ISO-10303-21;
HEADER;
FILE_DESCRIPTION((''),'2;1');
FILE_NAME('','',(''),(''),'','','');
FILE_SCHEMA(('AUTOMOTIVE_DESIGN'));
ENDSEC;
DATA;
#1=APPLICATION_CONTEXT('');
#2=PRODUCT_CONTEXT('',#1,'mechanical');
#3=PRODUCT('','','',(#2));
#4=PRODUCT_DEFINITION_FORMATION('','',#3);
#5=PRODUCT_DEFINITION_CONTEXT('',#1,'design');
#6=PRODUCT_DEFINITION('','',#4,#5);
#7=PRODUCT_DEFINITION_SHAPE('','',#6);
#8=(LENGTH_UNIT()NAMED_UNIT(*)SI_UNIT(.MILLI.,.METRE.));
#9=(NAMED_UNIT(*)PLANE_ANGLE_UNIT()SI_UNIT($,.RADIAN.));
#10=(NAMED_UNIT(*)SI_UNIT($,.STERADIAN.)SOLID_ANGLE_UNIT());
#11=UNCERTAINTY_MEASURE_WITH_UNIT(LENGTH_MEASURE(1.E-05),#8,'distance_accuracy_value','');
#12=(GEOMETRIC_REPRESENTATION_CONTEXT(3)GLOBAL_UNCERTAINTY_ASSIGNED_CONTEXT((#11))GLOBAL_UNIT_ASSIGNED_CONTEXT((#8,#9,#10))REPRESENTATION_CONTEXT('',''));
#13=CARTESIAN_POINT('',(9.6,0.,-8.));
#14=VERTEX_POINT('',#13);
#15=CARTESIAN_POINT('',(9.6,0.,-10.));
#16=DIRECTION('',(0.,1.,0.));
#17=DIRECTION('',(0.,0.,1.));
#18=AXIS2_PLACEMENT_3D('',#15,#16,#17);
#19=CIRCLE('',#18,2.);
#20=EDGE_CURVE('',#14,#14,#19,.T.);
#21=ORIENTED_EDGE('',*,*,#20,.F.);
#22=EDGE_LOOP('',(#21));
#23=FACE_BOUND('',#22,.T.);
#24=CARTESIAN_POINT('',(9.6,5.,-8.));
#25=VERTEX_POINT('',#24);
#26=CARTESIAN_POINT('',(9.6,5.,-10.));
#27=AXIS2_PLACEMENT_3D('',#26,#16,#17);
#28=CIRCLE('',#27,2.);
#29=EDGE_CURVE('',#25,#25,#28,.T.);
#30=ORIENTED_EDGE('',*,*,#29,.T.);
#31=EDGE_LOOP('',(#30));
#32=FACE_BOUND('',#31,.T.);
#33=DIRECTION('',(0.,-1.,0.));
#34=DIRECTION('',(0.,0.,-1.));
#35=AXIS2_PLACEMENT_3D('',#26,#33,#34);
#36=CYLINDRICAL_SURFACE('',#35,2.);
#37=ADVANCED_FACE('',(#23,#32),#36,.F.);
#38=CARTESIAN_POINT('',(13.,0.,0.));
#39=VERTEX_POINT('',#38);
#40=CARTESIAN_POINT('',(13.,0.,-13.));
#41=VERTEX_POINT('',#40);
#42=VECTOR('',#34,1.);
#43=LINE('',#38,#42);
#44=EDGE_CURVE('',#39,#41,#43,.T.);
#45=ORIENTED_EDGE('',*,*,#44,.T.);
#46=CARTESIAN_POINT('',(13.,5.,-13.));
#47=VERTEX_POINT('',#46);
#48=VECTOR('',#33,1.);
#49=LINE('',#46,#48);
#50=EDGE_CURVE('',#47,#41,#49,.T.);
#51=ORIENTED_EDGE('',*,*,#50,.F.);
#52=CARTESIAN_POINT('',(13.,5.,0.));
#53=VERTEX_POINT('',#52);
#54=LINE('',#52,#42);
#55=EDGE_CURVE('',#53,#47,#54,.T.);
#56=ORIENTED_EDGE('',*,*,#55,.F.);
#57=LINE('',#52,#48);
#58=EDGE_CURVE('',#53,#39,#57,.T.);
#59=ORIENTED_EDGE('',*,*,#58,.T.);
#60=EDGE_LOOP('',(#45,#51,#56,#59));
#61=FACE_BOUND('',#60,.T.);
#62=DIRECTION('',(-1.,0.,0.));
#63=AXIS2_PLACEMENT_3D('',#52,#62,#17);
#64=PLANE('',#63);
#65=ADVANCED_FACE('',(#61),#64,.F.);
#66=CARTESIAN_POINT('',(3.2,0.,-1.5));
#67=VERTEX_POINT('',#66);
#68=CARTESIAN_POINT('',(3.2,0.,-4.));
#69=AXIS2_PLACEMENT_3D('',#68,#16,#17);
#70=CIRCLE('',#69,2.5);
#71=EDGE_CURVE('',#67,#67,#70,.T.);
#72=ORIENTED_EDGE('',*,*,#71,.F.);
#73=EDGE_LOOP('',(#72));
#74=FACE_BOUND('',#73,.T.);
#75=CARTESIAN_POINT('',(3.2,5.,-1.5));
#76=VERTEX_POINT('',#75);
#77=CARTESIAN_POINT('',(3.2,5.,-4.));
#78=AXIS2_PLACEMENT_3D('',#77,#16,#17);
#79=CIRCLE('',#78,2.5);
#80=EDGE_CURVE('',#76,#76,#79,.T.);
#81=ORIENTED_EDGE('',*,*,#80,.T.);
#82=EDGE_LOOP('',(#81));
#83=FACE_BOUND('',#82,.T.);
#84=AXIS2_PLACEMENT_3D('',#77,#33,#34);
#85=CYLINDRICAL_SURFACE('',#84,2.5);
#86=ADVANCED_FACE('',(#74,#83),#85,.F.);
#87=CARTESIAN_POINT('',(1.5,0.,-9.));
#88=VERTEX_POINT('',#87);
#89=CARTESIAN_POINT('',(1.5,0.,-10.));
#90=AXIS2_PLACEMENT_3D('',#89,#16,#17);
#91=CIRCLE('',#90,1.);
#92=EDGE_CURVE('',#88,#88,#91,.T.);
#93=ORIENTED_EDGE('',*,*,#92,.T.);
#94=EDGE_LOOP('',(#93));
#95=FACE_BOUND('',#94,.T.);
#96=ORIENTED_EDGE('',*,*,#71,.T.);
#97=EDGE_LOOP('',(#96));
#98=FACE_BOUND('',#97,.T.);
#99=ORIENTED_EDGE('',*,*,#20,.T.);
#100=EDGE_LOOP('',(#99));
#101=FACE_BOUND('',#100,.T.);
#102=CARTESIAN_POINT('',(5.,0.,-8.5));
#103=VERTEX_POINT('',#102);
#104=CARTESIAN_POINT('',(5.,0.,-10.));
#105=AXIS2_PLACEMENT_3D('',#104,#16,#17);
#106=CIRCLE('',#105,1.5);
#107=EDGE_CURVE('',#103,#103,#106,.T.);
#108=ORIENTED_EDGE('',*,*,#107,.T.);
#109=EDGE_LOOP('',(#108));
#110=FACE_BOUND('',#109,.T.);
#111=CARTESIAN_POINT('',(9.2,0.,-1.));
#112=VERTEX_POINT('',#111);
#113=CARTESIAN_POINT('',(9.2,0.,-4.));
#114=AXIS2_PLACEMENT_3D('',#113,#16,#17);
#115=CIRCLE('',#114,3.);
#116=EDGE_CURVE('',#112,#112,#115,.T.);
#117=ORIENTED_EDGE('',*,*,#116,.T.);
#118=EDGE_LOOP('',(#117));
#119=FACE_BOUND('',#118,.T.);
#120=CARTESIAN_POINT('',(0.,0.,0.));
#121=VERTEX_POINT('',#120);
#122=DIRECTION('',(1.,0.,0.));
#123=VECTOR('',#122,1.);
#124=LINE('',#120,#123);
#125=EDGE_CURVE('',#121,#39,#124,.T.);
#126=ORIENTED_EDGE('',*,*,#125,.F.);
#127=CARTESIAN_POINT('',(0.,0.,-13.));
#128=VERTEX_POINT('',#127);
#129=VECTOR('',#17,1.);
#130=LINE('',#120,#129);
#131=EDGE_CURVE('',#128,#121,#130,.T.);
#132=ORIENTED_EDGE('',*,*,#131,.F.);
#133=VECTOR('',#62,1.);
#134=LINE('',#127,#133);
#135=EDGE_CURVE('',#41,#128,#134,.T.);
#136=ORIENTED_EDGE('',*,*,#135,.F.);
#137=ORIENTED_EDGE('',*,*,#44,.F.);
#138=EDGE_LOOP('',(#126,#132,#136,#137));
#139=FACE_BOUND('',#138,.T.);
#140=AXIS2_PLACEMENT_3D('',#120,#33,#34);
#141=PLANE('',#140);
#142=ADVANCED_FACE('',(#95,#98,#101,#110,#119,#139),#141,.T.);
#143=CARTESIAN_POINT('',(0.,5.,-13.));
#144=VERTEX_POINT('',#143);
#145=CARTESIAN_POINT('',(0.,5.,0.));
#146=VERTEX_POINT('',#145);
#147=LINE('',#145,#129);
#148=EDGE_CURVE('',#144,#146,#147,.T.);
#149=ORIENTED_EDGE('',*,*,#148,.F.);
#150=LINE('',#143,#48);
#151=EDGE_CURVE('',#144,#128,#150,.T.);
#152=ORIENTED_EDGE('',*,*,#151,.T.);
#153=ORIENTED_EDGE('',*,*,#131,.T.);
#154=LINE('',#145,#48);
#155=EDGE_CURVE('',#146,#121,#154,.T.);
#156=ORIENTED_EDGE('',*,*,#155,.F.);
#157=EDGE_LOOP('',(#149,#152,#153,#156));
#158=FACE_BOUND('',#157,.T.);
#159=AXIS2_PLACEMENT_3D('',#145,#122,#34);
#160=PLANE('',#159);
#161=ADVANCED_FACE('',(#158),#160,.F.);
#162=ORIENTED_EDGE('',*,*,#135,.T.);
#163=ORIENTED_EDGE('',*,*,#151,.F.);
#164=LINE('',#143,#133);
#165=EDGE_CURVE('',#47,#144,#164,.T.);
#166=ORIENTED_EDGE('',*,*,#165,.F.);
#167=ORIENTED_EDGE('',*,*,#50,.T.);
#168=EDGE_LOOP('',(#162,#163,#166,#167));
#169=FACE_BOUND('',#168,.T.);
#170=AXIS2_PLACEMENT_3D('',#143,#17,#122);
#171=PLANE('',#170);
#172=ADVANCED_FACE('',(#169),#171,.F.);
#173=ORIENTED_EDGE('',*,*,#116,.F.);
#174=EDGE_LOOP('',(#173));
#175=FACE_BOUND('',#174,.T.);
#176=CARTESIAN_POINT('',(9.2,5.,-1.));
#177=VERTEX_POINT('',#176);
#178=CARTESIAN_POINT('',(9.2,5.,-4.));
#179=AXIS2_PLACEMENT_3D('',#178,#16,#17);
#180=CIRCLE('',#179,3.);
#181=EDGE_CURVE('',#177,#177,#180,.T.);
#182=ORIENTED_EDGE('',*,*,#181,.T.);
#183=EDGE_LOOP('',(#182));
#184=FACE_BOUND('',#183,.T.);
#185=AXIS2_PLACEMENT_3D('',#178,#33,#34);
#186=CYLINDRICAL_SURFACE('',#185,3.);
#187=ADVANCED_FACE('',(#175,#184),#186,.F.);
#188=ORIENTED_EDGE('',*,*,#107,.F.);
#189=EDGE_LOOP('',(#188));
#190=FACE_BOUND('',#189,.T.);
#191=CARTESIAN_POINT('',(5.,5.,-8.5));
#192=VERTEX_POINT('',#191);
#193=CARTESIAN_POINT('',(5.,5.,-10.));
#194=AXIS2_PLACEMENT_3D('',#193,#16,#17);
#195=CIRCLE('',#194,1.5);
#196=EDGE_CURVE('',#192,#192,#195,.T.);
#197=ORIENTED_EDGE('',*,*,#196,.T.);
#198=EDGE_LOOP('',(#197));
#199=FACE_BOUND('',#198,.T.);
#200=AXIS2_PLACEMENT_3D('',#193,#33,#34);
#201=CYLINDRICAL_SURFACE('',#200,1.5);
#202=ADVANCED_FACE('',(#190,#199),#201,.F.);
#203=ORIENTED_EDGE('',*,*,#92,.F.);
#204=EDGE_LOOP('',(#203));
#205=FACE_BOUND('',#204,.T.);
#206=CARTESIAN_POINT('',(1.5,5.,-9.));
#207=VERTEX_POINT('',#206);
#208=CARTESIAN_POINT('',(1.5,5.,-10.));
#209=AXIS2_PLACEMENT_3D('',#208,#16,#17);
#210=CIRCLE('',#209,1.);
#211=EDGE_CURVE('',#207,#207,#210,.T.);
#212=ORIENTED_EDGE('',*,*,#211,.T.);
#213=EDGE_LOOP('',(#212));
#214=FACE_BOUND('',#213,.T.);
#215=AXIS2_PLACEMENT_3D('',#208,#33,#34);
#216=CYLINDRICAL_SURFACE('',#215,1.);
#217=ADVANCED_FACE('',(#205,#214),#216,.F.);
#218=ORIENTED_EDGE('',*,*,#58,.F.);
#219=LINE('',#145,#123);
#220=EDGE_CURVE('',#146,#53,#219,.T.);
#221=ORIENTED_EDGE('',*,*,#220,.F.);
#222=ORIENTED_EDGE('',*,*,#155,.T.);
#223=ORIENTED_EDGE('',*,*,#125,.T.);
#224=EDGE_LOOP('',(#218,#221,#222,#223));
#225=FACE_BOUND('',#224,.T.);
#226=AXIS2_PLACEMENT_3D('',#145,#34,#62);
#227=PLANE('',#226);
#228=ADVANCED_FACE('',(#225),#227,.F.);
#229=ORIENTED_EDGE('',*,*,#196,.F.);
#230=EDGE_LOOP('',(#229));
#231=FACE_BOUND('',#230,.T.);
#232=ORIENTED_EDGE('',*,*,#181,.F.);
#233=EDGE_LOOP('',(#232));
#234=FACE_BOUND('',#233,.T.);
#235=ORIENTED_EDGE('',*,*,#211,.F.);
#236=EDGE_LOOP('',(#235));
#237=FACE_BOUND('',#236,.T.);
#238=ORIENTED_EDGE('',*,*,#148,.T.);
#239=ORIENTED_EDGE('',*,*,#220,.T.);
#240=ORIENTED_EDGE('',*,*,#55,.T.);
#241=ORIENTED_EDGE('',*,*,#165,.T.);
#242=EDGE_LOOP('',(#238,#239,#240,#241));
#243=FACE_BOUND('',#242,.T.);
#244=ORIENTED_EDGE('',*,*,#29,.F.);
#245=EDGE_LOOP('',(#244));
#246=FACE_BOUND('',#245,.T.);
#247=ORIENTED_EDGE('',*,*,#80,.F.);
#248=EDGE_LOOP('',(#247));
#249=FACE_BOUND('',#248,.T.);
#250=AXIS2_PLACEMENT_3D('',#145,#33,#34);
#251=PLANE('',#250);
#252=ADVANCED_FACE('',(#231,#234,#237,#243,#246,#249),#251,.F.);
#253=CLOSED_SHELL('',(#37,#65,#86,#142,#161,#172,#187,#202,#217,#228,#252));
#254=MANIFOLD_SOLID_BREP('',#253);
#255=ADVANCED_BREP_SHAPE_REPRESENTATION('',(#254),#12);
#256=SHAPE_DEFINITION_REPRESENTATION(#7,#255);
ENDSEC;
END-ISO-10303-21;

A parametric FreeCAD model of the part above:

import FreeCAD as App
import Part
import Sketcher

V = App.Vector
Q = App.Units.Quantity


def add_polygon(sketch, points):
    """Adds a closed chain of lines whose ends are joined by coincident constraints."""
    first, n = sketch.GeometryCount, len(points)
    for a, b in zip(points, points[1:] + points[:1]):
        sketch.addGeometry(Part.LineSegment(App.Vector(*a, 0), App.Vector(*b, 0)), False)
    for i in range(n):
        sketch.addConstraint(Sketcher.Constraint("Coincident", first + i, 2, first + (i + 1) % n, 1))

doc = App.newDocument("Part")
body = doc.addObject("PartDesign::Body", "Body")

sketch1 = body.newObject("Sketcher::SketchObject", "Sketch")
sketch1.AttachmentSupport = (doc.getObject("XZ_Plane"), [""])
sketch1.MapMode = "FlatFace"
add_polygon(sketch1, [(0, -13), (0, 0), (13, 0), (13, -13)])
sketch1.addGeometry(Part.Circle(V(3.2, -4, 0), V(0, 0, 1), 2.5), False)
sketch1.addGeometry(Part.Circle(V(9.2, -4, 0), V(0, 0, 1), 3), False)
sketch1.addGeometry(Part.Circle(V(1.5, -10, 0), V(0, 0, 1), 1), False)
sketch1.addGeometry(Part.Circle(V(5, -10, 0), V(0, 0, 1), 1.5), False)
sketch1.addGeometry(Part.Circle(V(9.6, -10, 0), V(0, 0, 1), 2), False)
sketch1.addConstraint(Sketcher.Constraint("Vertical", 0))
sketch1.addConstraint(Sketcher.Constraint("Horizontal", 1))
sketch1.addConstraint(Sketcher.Constraint("Vertical", 2))
sketch1.addConstraint(Sketcher.Constraint("Horizontal", 3))
sketch1.addConstraint(Sketcher.Constraint("Coincident", 0, 2, -1, 1))
sketch1.addConstraint(Sketcher.Constraint("Horizontal", 4, 3, 5, 3))
sketch1.addConstraint(Sketcher.Constraint("Horizontal", 6, 3, 7, 3))
sketch1.addConstraint(Sketcher.Constraint("Horizontal", 7, 3, 8, 3))
sketch1.addConstraint(Sketcher.Constraint("Equal", 3, 0))
sketch1.addConstraint(Sketcher.Constraint("Diameter", 4, Q("5 mm")))
sketch1.addConstraint(Sketcher.Constraint("Diameter", 5, Q("6 mm")))
sketch1.addConstraint(Sketcher.Constraint("Diameter", 6, Q("2 mm")))
sketch1.addConstraint(Sketcher.Constraint("Diameter", 7, Q("3 mm")))
sketch1.addConstraint(Sketcher.Constraint("Diameter", 8, Q("4 mm")))
sketch1.addConstraint(Sketcher.Constraint("DistanceX", 1, 1, 1, 2, Q("13 mm")))
sketch1.addConstraint(Sketcher.Constraint("DistanceY", 4, 3, -1, 1, Q("4 mm")))
sketch1.addConstraint(Sketcher.Constraint("DistanceY", 6, 3, -1, 1, Q("10 mm")))
sketch1.addConstraint(Sketcher.Constraint("DistanceX", -1, 1, 7, 3, Q("5 mm")))
sketch1.addConstraint(Sketcher.Constraint("DistanceX", 4, 3, 5, 3, Q("6 mm")))
sketch1.addConstraint(Sketcher.Constraint("DistanceX", -1, 1, 4, 3, Q("3.2 mm")))
sketch1.addConstraint(Sketcher.Constraint("DistanceX", -1, 1, 6, 3, Q("1.5 mm")))
sketch1.addConstraint(Sketcher.Constraint("DistanceX", -1, 1, 8, 3, Q("9.6 mm")))
pad1 = body.newObject("PartDesign::Pad", "Pad")
pad1.Profile = sketch1
pad1.Length = 5
pad1.Reversed = True

doc.recompute()
